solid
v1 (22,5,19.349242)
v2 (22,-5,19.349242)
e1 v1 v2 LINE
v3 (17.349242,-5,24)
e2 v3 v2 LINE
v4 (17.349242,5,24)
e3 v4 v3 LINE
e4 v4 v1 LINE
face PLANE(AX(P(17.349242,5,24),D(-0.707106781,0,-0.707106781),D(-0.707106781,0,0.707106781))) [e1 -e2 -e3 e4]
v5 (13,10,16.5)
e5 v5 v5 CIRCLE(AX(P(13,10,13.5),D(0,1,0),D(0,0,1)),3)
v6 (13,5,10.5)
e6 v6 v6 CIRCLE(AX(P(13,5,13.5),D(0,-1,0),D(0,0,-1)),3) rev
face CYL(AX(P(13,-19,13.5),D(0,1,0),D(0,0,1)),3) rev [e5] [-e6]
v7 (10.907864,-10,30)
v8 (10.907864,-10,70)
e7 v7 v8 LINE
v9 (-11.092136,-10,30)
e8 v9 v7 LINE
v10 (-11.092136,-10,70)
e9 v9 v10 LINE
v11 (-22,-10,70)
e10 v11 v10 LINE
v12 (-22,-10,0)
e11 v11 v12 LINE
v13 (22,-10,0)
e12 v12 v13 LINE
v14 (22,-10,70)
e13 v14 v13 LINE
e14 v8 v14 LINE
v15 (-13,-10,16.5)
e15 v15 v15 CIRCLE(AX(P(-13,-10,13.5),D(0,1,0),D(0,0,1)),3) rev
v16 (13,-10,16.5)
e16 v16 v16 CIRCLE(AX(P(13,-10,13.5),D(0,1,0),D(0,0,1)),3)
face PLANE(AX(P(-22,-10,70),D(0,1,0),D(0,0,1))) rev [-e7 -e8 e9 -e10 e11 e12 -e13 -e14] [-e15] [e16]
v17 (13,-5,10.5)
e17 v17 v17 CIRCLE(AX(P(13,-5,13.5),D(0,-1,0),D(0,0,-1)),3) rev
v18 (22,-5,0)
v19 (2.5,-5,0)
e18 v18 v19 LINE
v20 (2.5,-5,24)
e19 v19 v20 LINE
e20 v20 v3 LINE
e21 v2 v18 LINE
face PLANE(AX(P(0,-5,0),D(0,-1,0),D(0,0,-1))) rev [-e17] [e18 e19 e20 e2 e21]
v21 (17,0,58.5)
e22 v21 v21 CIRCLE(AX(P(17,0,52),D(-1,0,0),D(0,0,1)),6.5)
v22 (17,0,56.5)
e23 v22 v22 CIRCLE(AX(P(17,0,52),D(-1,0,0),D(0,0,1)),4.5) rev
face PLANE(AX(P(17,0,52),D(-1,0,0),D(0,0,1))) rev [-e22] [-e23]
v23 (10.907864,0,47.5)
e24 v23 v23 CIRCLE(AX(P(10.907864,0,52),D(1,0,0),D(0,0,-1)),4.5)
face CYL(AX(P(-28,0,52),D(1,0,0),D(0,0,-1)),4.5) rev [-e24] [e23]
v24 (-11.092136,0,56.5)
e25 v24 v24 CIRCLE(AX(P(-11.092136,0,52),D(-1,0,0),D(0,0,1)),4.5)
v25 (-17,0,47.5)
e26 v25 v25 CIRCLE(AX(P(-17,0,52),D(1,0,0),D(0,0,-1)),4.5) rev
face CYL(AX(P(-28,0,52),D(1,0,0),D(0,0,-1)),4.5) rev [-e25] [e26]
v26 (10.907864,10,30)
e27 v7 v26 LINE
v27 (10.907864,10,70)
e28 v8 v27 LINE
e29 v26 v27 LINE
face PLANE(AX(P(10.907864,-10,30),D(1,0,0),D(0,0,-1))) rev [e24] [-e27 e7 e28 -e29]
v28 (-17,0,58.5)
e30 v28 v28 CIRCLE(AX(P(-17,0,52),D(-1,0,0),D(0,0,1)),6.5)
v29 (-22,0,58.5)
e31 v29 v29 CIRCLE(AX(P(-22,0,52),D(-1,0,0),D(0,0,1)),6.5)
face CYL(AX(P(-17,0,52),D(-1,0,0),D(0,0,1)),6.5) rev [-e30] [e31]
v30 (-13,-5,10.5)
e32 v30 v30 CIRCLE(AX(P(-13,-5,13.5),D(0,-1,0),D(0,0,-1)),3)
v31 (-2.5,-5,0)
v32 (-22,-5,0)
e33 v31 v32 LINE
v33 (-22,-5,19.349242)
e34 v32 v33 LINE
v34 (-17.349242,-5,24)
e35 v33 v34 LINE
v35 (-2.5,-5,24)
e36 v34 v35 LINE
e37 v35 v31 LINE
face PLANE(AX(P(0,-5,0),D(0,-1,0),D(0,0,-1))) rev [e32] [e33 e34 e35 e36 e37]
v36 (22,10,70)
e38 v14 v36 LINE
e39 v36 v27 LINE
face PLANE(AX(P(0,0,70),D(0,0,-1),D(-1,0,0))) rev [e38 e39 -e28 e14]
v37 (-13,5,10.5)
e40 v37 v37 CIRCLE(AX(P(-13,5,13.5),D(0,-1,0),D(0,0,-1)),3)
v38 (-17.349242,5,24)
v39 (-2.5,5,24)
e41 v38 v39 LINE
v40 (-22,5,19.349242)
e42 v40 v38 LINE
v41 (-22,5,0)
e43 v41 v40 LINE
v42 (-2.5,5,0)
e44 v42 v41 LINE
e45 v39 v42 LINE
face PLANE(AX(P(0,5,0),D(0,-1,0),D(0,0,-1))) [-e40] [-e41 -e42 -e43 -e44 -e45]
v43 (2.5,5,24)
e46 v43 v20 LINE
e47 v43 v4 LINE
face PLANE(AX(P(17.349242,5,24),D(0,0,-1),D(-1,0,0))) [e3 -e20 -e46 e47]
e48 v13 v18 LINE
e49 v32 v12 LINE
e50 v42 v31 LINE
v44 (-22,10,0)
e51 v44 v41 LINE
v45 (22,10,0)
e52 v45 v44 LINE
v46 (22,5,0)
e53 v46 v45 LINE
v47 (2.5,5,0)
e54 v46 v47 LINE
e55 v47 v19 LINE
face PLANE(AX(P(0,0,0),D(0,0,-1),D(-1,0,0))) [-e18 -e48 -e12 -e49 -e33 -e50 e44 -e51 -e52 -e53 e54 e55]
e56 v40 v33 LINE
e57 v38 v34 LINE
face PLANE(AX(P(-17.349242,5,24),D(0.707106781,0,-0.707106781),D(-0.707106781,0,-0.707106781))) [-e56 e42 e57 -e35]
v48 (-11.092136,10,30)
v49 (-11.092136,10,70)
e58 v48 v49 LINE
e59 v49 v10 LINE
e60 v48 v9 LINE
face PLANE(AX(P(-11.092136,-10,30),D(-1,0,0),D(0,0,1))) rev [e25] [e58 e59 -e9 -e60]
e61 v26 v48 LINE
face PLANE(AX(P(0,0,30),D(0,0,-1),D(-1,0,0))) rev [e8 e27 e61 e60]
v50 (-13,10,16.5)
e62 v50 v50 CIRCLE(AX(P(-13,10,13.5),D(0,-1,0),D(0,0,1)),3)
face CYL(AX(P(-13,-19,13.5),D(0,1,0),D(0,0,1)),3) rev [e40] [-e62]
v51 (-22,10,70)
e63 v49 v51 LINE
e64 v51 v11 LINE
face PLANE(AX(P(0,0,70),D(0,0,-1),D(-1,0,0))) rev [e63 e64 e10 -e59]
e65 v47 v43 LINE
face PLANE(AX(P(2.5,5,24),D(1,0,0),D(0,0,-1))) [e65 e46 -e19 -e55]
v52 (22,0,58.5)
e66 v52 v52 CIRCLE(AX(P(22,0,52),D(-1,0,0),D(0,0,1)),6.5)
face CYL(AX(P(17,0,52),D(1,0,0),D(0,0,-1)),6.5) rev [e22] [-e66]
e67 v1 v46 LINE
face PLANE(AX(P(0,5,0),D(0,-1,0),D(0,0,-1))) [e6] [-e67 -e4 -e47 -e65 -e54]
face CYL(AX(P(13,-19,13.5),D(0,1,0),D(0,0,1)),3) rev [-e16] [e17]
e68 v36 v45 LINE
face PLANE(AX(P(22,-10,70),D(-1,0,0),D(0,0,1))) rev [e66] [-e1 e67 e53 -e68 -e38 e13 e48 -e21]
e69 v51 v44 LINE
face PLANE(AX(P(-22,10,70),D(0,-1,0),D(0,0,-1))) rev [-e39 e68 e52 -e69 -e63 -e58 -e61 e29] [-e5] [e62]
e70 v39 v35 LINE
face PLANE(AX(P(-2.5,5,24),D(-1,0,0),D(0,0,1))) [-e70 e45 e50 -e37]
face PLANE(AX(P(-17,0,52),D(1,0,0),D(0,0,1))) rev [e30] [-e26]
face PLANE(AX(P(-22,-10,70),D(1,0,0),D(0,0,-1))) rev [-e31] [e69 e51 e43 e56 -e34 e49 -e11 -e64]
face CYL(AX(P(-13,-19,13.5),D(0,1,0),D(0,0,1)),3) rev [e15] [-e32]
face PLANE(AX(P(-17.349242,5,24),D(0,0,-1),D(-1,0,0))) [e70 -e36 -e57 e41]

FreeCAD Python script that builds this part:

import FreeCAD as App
import Part
import Sketcher

V = App.Vector


def add_polygon(sketch, points):
    """Adds a closed chain of lines whose ends are joined by coincident constraints."""
    first, n = sketch.GeometryCount, len(points)
    for a, b in zip(points, points[1:] + points[:1]):
        sketch.addGeometry(Part.LineSegment(App.Vector(*a, 0), App.Vector(*b, 0)), False)
    for i in range(n):
        sketch.addConstraint(Sketcher.Constraint("Coincident", first + i, 2, first + (i + 1) % n, 1))

doc = App.newDocument("Part")
body = doc.addObject("PartDesign::Body", "Body")

# Sketch on XY plane
sketch1 = body.newObject("Sketcher::SketchObject", "Sketch")
sketch1.AttachmentSupport = (doc.getObject("XY_Plane"), [""])
sketch1.MapMode = "FlatFace"
add_polygon(sketch1, [(-22, 10), (-22, -10), (22, -10), (22, 10)])  # lines 0-3
sketch1.addConstraint([
    Sketcher.Constraint("Vertical", 0),
    Sketcher.Constraint("Horizontal", 1),
    Sketcher.Constraint("Vertical", 2),
    Sketcher.Constraint("Horizontal", 3),
    Sketcher.Constraint("Symmetric", 0, 2, 2, 2, -1, 1),
    Sketcher.Constraint("DistanceX", 1, 1, 1, 2, 44.0),
    Sketcher.Constraint("DistanceY", 0, 2, 0, 1, 20.0),
])
pad1 = body.newObject("PartDesign::Pad", "Pad")
pad1.Profile = sketch1
pad1.Length = 70

# Sketch on XY plane
sketch2 = body.newObject("Sketcher::SketchObject", "Sketch001")
sketch2.AttachmentSupport = (doc.getObject("XY_Plane"), [""])
sketch2.MapMode = "FlatFace"
sketch2.AttachmentOffset = App.Placement(V(0, 0, 70), App.Rotation())
add_polygon(sketch2, [(-11.092136, 10), (-11.092136, -10), (10.907864, -10), (10.907864, 10)])  # lines 0-3
sketch2.addConstraint([
    Sketcher.Constraint("Vertical", 0),
    Sketcher.Constraint("Horizontal", 1),
    Sketcher.Constraint("Vertical", 2),
    Sketcher.Constraint("Horizontal", 3),
    Sketcher.Constraint("DistanceX", 1, 1, 1, 2, 22.0),
    Sketcher.Constraint("DistanceY", 0, 2, 0, 1, 20.0),
    Sketcher.Constraint("DistanceY", 0, 2, -1, 1, 10.0),
    Sketcher.Constraint("DistanceX", 0, 2, -1, 1, 11.092136),
])
pocket1 = body.newObject("PartDesign::Pocket", "Pocket")
pocket1.Profile = sketch2
pocket1.Length = 40

# Sketch on YZ plane
sketch3 = body.newObject("Sketcher::SketchObject", "Sketch002")
sketch3.AttachmentSupport = (doc.getObject("YZ_Plane"), [""])
sketch3.MapMode = "FlatFace"
sketch3.AttachmentOffset = App.Placement(V(0, 0, 22), App.Rotation())
sketch3.addGeometry(Part.Circle(V(0, 52, 0), V(0, 0, 1), 4.5), False)
sketch3.addConstraint([
    Sketcher.Constraint("PointOnObject", 0, 3, -2),
    Sketcher.Constraint("Diameter", 0, 9.0),
    Sketcher.Constraint("DistanceY", -1, 1, 0, 3, 52.0),
])
pocket2 = body.newObject("PartDesign::Pocket", "Pocket001")
pocket2.Profile = sketch3
pocket2.Length = 50

# Sketch on YZ plane
sketch4 = body.newObject("Sketcher::SketchObject", "Sketch003")
sketch4.AttachmentSupport = (doc.getObject("YZ_Plane"), [""])
sketch4.MapMode = "FlatFace"
sketch4.AttachmentOffset = App.Placement(V(0, 0, 22), App.Rotation())
sketch4.addGeometry(Part.Circle(V(0, 52, 0), V(0, 0, 1), 6.5), False)
sketch4.addConstraint([
    Sketcher.Constraint("PointOnObject", 0, 3, -2),
    Sketcher.Constraint("Diameter", 0, 13.0),
    Sketcher.Constraint("DistanceY", -1, 1, 0, 3, 52.0),
])
pocket3 = body.newObject("PartDesign::Pocket", "Pocket002")
pocket3.Profile = sketch4
pocket3.Length = 5

# Sketch on XZ plane
sketch5 = body.newObject("Sketcher::SketchObject", "Sketch004")
sketch5.AttachmentSupport = (doc.getObject("XZ_Plane"), [""])
sketch5.MapMode = "FlatFace"
sketch5.AttachmentOffset = App.Placement(V(0, 0, -10), App.Rotation())
sketch5.addGeometry(Part.Circle(V(13, 13.5, 0), V(0, 0, 1), 3), False)
sketch5.addConstraint([
    Sketcher.Constraint("Diameter", 0, 6.0),
    Sketcher.Constraint("DistanceX", -1, 1, 0, 3, 13.0),
    Sketcher.Constraint("DistanceY", -1, 1, 0, 3, 13.5),
])
pocket4 = body.newObject("PartDesign::Pocket", "Pocket003")
pocket4.Profile = sketch5
pocket4.Length = 29
pocket4.Reversed = True
doc.recompute()

mirrored = body.newObject("PartDesign::Mirrored", "Mirrored")
mirrored.Originals = [pocket3, pocket4]
mirrored.MirrorPlane = (doc.getObject("YZ_Plane"), [""])
body.Tip = mirrored

# Sketch on XZ plane
sketch6 = body.newObject("Sketcher::SketchObject", "Sketch005")
sketch6.AttachmentSupport = (doc.getObject("XZ_Plane"), [""])
sketch6.MapMode = "FlatFace"
add_polygon(sketch6, [(2.5, 0), (2.5, 24), (17.349242, 24), (22, 19.349242), (22, 0)])  # lines 0-4
add_polygon(sketch6, [(-22, 0), (-22, 19.349242), (-17.349242, 24), (-2.5, 24), (-2.5, 0)])  # lines 5-9
sketch6.addConstraint([
    Sketcher.Constraint("Vertical", 0),
    Sketcher.Constraint("Horizontal", 1),
    Sketcher.Constraint("Vertical", 3),
    Sketcher.Constraint("Horizontal", 4),
    Sketcher.Constraint("Vertical", 5),
    Sketcher.Constraint("Horizontal", 7),
    Sketcher.Constraint("Vertical", 8),
    Sketcher.Constraint("Horizontal", 9),
    Sketcher.Constraint("Symmetric", 4, 2, 8, 2, -1, 1),
    Sketcher.Constraint("Symmetric", 2, 2, 5, 2, -2),
    Sketcher.Constraint("Symmetric", 1, 2, 6, 2, -2),
    Sketcher.Constraint("PointOnObject", 3, 2, -1),
    Sketcher.Constraint("Perpendicular", 2, 6),
    Sketcher.Constraint("DistanceY", 0, 1, 0, 2, 24.0),
    Sketcher.Constraint("DistanceX", 4, 2, 4, 1, 19.5),
    Sketcher.Constraint("DistanceX", -1, 1, 2, 2, 22.0),
    Sketcher.Constraint("DistanceX", 1, 1, 1, 2, 14.849242),
])
pocket5 = body.newObject("PartDesign::Pocket", "Pocket004")
pocket5.Profile = sketch6
pocket5.Type = "TwoLengths"
pocket5.Length = 5
pocket5.Length2 = 5

doc.recompute()
